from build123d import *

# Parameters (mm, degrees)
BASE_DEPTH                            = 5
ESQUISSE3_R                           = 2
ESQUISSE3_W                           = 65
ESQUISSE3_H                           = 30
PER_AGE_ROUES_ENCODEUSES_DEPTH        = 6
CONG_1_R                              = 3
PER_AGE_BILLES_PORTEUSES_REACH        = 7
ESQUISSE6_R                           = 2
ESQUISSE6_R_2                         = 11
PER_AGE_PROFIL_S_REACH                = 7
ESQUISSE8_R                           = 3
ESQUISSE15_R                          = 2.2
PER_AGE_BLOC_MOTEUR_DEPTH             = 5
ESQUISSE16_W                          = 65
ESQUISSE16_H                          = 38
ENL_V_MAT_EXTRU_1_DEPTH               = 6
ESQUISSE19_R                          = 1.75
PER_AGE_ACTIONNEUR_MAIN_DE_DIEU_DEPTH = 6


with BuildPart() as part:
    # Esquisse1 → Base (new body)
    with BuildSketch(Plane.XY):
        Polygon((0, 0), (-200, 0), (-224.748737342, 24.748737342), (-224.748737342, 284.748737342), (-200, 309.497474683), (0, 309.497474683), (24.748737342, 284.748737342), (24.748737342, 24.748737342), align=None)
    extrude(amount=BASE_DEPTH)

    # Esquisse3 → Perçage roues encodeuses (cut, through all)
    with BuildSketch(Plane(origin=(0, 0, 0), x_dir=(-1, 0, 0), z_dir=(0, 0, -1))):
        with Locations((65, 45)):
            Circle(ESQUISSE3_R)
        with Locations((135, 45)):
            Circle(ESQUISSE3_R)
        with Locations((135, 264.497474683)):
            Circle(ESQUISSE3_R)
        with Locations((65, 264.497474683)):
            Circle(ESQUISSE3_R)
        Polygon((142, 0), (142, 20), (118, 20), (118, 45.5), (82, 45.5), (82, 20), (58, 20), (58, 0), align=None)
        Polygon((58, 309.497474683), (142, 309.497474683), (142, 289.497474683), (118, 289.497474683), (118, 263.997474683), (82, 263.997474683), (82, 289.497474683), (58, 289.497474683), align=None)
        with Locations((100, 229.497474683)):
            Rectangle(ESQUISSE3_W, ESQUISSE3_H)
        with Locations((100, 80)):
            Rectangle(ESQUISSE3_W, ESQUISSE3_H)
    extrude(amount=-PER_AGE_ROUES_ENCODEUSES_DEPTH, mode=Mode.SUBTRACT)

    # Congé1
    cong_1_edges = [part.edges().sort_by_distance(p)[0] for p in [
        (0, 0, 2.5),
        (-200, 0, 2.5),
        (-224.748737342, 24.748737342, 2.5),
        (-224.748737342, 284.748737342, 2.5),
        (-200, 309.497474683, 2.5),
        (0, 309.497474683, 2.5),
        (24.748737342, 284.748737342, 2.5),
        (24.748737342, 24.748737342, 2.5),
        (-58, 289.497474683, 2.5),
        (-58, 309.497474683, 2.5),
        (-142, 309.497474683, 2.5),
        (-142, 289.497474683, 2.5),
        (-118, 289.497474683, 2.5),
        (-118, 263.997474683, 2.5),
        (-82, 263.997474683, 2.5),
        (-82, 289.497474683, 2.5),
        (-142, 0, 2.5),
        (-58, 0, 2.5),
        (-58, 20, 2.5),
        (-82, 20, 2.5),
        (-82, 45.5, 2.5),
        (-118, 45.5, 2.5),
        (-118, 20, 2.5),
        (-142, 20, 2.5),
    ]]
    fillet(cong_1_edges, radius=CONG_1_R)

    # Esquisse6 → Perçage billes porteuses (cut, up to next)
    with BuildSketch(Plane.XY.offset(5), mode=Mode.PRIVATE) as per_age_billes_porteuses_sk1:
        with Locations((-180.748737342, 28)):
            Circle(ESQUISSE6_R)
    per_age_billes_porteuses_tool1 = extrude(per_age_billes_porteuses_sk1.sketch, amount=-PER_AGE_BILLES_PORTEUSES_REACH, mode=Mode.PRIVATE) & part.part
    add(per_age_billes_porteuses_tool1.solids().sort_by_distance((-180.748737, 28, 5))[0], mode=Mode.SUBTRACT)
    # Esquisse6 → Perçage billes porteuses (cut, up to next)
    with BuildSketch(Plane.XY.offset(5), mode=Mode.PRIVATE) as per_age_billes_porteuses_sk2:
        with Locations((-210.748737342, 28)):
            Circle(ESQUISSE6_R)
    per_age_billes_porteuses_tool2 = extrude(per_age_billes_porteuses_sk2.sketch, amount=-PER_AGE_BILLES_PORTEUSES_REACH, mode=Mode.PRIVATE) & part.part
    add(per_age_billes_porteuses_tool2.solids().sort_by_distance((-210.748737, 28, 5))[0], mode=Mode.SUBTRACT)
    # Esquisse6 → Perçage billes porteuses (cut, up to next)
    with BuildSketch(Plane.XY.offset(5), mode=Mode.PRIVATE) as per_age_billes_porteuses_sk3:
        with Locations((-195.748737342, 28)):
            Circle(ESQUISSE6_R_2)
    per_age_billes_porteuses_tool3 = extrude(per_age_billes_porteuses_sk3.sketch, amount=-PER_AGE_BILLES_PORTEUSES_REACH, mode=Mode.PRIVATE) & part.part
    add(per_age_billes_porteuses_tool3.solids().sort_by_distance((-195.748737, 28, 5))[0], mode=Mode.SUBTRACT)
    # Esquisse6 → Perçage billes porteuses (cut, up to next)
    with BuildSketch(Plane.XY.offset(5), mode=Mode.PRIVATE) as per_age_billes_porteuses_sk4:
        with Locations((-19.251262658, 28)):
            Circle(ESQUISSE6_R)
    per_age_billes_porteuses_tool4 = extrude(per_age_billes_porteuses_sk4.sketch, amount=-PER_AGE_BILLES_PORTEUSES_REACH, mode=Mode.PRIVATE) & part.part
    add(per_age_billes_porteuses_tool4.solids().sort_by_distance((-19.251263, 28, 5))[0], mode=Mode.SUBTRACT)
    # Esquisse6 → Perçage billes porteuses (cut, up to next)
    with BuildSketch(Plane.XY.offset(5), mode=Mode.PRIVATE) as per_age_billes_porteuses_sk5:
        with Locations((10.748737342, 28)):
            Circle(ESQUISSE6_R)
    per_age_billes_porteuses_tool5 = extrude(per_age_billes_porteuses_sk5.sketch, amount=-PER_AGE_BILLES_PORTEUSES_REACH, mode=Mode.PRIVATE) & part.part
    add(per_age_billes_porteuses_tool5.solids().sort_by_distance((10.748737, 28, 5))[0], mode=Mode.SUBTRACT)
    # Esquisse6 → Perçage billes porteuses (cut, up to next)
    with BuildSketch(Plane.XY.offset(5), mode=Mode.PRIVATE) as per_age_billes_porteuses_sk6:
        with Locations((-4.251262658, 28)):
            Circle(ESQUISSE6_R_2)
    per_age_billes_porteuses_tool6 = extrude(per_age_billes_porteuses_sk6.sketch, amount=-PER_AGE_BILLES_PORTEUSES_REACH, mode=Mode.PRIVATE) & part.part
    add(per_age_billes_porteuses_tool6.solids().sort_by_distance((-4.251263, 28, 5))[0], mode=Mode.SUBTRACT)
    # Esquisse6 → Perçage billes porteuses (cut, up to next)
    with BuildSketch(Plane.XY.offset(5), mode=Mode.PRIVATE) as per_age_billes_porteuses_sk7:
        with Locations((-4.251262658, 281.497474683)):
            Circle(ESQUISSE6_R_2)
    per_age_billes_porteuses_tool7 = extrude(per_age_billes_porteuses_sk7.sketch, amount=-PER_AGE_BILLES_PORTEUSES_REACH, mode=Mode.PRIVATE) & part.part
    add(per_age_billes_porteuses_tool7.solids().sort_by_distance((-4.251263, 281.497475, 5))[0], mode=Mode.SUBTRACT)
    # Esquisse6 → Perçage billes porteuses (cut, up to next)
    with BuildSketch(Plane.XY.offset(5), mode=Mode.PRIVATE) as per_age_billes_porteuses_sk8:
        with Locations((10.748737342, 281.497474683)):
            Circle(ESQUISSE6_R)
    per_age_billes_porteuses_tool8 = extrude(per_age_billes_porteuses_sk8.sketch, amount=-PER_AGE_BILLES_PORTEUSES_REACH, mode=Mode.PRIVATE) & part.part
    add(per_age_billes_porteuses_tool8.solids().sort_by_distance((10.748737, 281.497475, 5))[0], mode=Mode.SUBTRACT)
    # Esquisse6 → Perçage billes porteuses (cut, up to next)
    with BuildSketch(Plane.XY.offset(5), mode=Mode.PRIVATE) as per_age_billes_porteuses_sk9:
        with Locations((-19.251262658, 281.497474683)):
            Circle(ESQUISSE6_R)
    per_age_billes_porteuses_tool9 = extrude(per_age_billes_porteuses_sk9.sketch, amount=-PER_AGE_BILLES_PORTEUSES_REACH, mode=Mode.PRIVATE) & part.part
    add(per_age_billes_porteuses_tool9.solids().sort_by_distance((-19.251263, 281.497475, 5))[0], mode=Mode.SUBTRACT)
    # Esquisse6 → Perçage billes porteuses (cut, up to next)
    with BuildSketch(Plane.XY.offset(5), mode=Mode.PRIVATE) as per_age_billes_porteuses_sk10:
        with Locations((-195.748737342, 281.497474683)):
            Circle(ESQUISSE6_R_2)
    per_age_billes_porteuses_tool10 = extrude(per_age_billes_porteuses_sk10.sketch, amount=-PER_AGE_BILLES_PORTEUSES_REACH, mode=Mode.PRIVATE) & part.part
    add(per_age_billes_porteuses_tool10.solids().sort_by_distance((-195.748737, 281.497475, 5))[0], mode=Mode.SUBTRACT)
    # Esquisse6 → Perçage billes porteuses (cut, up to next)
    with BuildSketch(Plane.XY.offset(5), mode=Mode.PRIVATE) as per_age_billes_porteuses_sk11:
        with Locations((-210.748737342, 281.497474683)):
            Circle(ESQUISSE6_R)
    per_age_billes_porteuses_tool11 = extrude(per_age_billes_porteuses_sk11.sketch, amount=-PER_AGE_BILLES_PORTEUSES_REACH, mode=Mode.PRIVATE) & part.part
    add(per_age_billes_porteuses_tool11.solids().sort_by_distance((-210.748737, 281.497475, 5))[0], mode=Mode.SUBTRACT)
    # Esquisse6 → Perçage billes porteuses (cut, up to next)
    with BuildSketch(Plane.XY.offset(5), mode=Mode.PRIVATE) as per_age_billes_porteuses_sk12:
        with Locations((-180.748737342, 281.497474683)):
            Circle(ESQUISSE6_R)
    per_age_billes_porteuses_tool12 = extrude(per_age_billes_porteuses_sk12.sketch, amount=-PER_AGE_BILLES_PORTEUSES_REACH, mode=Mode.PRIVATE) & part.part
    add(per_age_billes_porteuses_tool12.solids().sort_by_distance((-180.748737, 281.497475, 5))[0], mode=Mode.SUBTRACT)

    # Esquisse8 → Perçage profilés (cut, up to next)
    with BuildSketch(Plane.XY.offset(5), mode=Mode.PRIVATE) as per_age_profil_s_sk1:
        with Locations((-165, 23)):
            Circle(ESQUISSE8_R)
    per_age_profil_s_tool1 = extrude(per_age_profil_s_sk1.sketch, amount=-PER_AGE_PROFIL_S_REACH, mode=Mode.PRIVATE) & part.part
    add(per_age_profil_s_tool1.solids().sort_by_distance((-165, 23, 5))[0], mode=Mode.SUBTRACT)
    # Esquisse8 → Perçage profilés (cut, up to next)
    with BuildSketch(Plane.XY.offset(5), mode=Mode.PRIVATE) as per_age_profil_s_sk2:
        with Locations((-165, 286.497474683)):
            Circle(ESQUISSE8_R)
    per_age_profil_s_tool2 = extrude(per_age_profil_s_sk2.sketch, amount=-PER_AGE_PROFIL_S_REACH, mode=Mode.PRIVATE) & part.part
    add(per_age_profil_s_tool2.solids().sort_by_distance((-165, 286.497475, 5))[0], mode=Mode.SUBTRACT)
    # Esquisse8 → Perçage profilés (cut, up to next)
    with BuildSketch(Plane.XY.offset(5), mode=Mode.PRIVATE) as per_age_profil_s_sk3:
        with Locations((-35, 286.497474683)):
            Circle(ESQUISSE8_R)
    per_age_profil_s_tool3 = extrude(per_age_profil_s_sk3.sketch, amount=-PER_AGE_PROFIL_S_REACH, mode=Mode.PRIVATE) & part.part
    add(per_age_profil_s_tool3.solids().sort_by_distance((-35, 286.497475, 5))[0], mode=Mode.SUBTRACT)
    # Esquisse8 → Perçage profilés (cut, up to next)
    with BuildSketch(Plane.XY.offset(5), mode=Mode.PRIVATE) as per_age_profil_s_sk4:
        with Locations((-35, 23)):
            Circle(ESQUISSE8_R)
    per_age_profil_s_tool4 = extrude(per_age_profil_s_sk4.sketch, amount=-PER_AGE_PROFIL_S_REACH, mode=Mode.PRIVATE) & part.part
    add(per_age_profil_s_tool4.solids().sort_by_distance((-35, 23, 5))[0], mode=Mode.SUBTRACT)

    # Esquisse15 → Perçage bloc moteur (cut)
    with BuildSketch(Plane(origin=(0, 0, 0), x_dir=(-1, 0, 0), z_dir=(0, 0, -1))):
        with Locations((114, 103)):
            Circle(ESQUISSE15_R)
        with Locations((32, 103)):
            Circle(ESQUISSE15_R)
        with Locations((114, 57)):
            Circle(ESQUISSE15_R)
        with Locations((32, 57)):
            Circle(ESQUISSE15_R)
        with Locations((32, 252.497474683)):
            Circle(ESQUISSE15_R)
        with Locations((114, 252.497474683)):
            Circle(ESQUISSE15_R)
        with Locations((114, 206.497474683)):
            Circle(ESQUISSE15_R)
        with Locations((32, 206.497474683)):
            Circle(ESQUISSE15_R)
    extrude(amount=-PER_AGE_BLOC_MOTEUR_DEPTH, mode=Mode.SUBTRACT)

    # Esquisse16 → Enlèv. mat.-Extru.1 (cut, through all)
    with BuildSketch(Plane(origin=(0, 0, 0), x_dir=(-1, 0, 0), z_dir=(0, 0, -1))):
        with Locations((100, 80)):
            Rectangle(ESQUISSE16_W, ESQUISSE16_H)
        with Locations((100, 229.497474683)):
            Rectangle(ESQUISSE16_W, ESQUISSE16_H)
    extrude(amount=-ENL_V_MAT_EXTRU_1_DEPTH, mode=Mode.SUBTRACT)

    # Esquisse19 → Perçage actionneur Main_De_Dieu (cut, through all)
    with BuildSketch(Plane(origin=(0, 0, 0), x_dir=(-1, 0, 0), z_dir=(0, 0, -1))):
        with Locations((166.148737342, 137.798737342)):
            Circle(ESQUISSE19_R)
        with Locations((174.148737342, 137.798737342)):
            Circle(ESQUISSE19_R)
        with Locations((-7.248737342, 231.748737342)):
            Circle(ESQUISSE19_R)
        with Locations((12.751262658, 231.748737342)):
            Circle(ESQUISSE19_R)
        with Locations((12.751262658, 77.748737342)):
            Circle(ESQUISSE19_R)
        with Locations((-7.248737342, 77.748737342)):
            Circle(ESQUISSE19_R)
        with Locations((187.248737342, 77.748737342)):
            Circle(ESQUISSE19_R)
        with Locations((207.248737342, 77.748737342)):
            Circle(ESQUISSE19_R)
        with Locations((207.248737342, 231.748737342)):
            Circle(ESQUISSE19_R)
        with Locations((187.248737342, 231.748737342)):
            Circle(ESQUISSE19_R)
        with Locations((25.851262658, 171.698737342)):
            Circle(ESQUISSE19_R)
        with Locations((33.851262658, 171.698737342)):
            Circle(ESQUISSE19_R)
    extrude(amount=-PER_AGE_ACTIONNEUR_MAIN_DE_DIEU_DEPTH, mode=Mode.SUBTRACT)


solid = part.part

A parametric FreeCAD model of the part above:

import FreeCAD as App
import Part
import Sketcher

V = App.Vector
Q = App.Units.Quantity


def edges_at(feature, points):
    """Names of the edges that pass closest to the given points."""
    edges = feature.Shape.Edges
    near = lambda p: min(range(len(edges)), key=lambda i: edges[i].distToShape(Part.Vertex(*p))[0])
    return sorted({f"Edge{near(p) + 1}" for p in points})

doc = App.newDocument("Part")
body = doc.addObject("PartDesign::Body", "Body")

# Sketch on XY plane
sketch1 = body.newObject("Sketcher::SketchObject", "Sketch")
sketch1.AttachmentSupport = (doc.getObject("XY_Plane"), [""])
sketch1.MapMode = "FlatFace"
sketch1.addGeometry([
    Part.LineSegment(V(-200, 0, 0), V(0, 0, 0)),  # 0
    Part.LineSegment(V(0, 0, 0), V(25, 25, 0)),  # 1
    Part.LineSegment(V(25, 25, 0), V(25, 285, 0)),  # 2
    Part.LineSegment(V(25, 285, 0), V(0, 309, 0)),  # 3
    Part.LineSegment(V(0, 309, 0), V(-200, 309, 0)),  # 4
    Part.LineSegment(V(-200, 309, 0), V(-225, 285, 0)),  # 5
    Part.LineSegment(V(-225, 285, 0), V(-225, 25, 0)),  # 6
    Part.LineSegment(V(-225, 25, 0), V(-200, 0, 0)),  # 7
], False)
sketch1.addConstraint([
    Sketcher.Constraint("Coincident", 0, 2, 1, 1),
    Sketcher.Constraint("Coincident", 1, 2, 2, 1),
    Sketcher.Constraint("Coincident", 2, 2, 3, 1),
    Sketcher.Constraint("Coincident", 3, 2, 4, 1),
    Sketcher.Constraint("Coincident", 4, 2, 5, 1),
    Sketcher.Constraint("Coincident", 5, 2, 6, 1),
    Sketcher.Constraint("Coincident", 6, 2, 7, 1),
    Sketcher.Constraint("Coincident", 7, 2, 0, 1),
    Sketcher.Constraint("Horizontal", 0),
    Sketcher.Constraint("Vertical", 2),
    Sketcher.Constraint("Horizontal", 4),
    Sketcher.Constraint("Vertical", 6),
    Sketcher.Constraint("Coincident", 0, 2, -1, 1),
    Sketcher.Constraint("PointOnObject", 3, 2, -2),
    Sketcher.Constraint("Perpendicular", 1, 3),
    Sketcher.Constraint("Perpendicular", 3, 5),
    Sketcher.Constraint("Perpendicular", 5, 7),
    Sketcher.Constraint("Horizontal", 2, 2, 5, 2),
    Sketcher.Constraint("Horizontal", 1, 2, 6, 2),
    Sketcher.Constraint("Vertical", 4, 2, 7, 2),
    Sketcher.Constraint("DistanceX", 0, 1, 0, 2, Q("200 mm")),
    Sketcher.Constraint("DistanceY", 2, 1, 2, 2, Q("260 mm")),
    Sketcher.Constraint("Distance", 1, Q("35 mm")),
])
pad1 = body.newObject("PartDesign::Pad", "Pad")
pad1.Profile = sketch1
pad1.Length = 5

# Sketch on XY plane
sketch2 = body.newObject("Sketcher::SketchObject", "Sketch001")
sketch2.AttachmentSupport = (doc.getObject("XY_Plane"), [""])
sketch2.MapMode = "FlatFace"
sketch2.addGeometry([
    Part.Circle(V(-65, 45, 0), V(0, 0, 1), 2),  # 0
    Part.Circle(V(-135, 45, 0), V(0, 0, 1), 2),  # 1
    Part.Circle(V(-135, 264.5, 0), V(0, 0, 1), 2),  # 2
    Part.Circle(V(-65, 264.5, 0), V(0, 0, 1), 2),  # 3
    Part.LineSegment(V(-142, 0, 0), V(-142, 20, 0)),  # 4
    Part.LineSegment(V(-142, 20, 0), V(-118, 20, 0)),  # 5
    Part.LineSegment(V(-118, 20, 0), V(-118, 45.5, 0)),  # 6
    Part.LineSegment(V(-118, 45.5, 0), V(-82, 45.5, 0)),  # 7
    Part.LineSegment(V(-82, 45.5, 0), V(-82, 20, 0)),  # 8
    Part.LineSegment(V(-82, 20, 0), V(-58, 20, 0)),  # 9
    Part.LineSegment(V(-58, 20, 0), V(-58, 0, 0)),  # 10
    Part.LineSegment(V(-58, 0, 0), V(-142, 0, 0)),  # 11
    Part.LineSegment(V(-142, 309.5, 0), V(-58, 309.5, 0)),  # 12
    Part.LineSegment(V(-58, 309.5, 0), V(-58, 289.5, 0)),  # 13
    Part.LineSegment(V(-58, 289.5, 0), V(-82, 289.5, 0)),  # 14
    Part.LineSegment(V(-82, 289.5, 0), V(-82, 264, 0)),  # 15
    Part.LineSegment(V(-82, 264, 0), V(-118, 264, 0)),  # 16
    Part.LineSegment(V(-118, 264, 0), V(-118, 289.5, 0)),  # 17
    Part.LineSegment(V(-118, 289.5, 0), V(-142, 289.5, 0)),  # 18
    Part.LineSegment(V(-142, 289.5, 0), V(-142, 309.5, 0)),  # 19
    Part.LineSegment(V(-67.5, 244.5, 0), V(-67.5, 214.5, 0)),  # 20
    Part.LineSegment(V(-67.5, 214.5, 0), V(-132.5, 214.5, 0)),  # 21
    Part.LineSegment(V(-132.5, 214.5, 0), V(-132.5, 244.5, 0)),  # 22
    Part.LineSegment(V(-132.5, 244.5, 0), V(-67.5, 244.5, 0)),  # 23
    Part.LineSegment(V(-67.5, 95, 0), V(-67.5, 65, 0)),  # 24
    Part.LineSegment(V(-67.5, 65, 0), V(-132.5, 65, 0)),  # 25
    Part.LineSegment(V(-132.5, 65, 0), V(-132.5, 95, 0)),  # 26
    Part.LineSegment(V(-132.5, 95, 0), V(-67.5, 95, 0)),  # 27
], False)
sketch2.addConstraint([
    Sketcher.Constraint("Coincident", 4, 2, 5, 1),
    Sketcher.Constraint("Coincident", 5, 2, 6, 1),
    Sketcher.Constraint("Coincident", 6, 2, 7, 1),
    Sketcher.Constraint("Coincident", 7, 2, 8, 1),
    Sketcher.Constraint("Coincident", 8, 2, 9, 1),
    Sketcher.Constraint("Coincident", 9, 2, 10, 1),
    Sketcher.Constraint("Coincident", 10, 2, 11, 1),
    Sketcher.Constraint("Coincident", 11, 2, 4, 1),
    Sketcher.Constraint("Coincident", 12, 2, 13, 1),
    Sketcher.Constraint("Coincident", 13, 2, 14, 1),
    Sketcher.Constraint("Coincident", 14, 2, 15, 1),
    Sketcher.Constraint("Coincident", 15, 2, 16, 1),
    Sketcher.Constraint("Coincident", 16, 2, 17, 1),
    Sketcher.Constraint("Coincident", 17, 2, 18, 1),
    Sketcher.Constraint("Coincident", 18, 2, 19, 1),
    Sketcher.Constraint("Coincident", 19, 2, 12, 1),
    Sketcher.Constraint("Coincident", 20, 2, 21, 1),
    Sketcher.Constraint("Coincident", 21, 2, 22, 1),
    Sketcher.Constraint("Coincident", 22, 2, 23, 1),
    Sketcher.Constraint("Coincident", 23, 2, 20, 1),
    Sketcher.Constraint("Coincident", 24, 2, 25, 1),
    Sketcher.Constraint("Coincident", 25, 2, 26, 1),
    Sketcher.Constraint("Coincident", 26, 2, 27, 1),
    Sketcher.Constraint("Coincident", 27, 2, 24, 1),
    Sketcher.Constraint("Vertical", 4),
    Sketcher.Constraint("Horizontal", 5),
    Sketcher.Constraint("Vertical", 6),
    Sketcher.Constraint("Horizontal", 7),
    Sketcher.Constraint("Vertical", 8),
    Sketcher.Constraint("Horizontal", 9),
    Sketcher.Constraint("Vertical", 10),
    Sketcher.Constraint("Horizontal", 11),
    Sketcher.Constraint("Horizontal", 12),
    Sketcher.Constraint("Vertical", 13),
    Sketcher.Constraint("Horizontal", 14),
    Sketcher.Constraint("Vertical", 15),
    Sketcher.Constraint("Horizontal", 16),
    Sketcher.Constraint("Vertical", 17),
    Sketcher.Constraint("Horizontal", 18),
    Sketcher.Constraint("Vertical", 19),
    Sketcher.Constraint("Vertical", 20),
    Sketcher.Constraint("Horizontal", 21),
    Sketcher.Constraint("Vertical", 22),
    Sketcher.Constraint("Horizontal", 23),
    Sketcher.Constraint("Vertical", 24),
    Sketcher.Constraint("Horizontal", 25),
    Sketcher.Constraint("Vertical", 26),
    Sketcher.Constraint("Horizontal", 27),
    Sketcher.Constraint("Equal", 0, 1),
    Sketcher.Constraint("Equal", 1, 2),
    Sketcher.Constraint("Equal", 2, 3),
    Sketcher.Constraint("PointOnObject", 10, 2, -1),
    Sketcher.Constraint("Horizontal", 0, 3, 1, 3),
    Sketcher.Constraint("Horizontal", 2, 3, 3, 3),
    Sketcher.Constraint("Horizontal", 5, 2, 8, 2),
    Sketcher.Constraint("Horizontal", 14, 2, 17, 2),
    Sketcher.Constraint("Vertical", 1, 3, 2, 3),
    Sketcher.Constraint("Vertical", 0, 3, 3, 3),
    Sketcher.Constraint("Vertical", 10, 2, 12, 2),
    Sketcher.Constraint("Vertical", 8, 2, 14, 2),
    Sketcher.Constraint("Vertical", 6, 2, 16, 2),
    Sketcher.Constraint("Vertical", 11, 2, 18, 2),
    Sketcher.Constraint("Vertical", 23, 2, 24, 2),
    Sketcher.Constraint("Vertical", 22, 2, 25, 2),
    Sketcher.Constraint("Equal", 5, 9),
    Sketcher.Constraint("Equal", 10, 13),
    Sketcher.Constraint("Equal", 8, 15),
    Sketcher.Constraint("Equal", 22, 24),
    Sketcher.Constraint("Diameter", 0, Q("4 mm")),
    Sketcher.Constraint("DistanceX", 5, 1, 5, 2, Q("24 mm")),
    Sketcher.Constraint("DistanceX", 7, 1, 7, 2, Q("36 mm")),
    Sketcher.Constraint("DistanceX", 21, 2, 21, 1, Q("65 mm")),
    Sketcher.Constraint("DistanceY", 4, 1, 4, 2, Q("20 mm")),
    Sketcher.Constraint("DistanceY", 20, 2, 20, 1, Q("30 mm")),
    Sketcher.Constraint("DistanceY", 6, 1, 6, 2, Q("25.5 mm")),
    Sketcher.Constraint("DistanceX", 0, 3, -1, 1, Q("65 mm")),
    Sketcher.Constraint("DistanceY", -1, 1, 0, 3, Q("45 mm")),
    Sketcher.Constraint("DistanceX", 1, 3, -1, 1, Q("135 mm")),
    Sketcher.Constraint("DistanceX", 4, 2, -1, 1, Q("142 mm")),
    Sketcher.Constraint("DistanceY", -1, 1, 24, 2, Q("65 mm")),
    Sketcher.Constraint("DistanceY", 3, 3, 12, 2, Q("45 mm")),
    Sketcher.Constraint("DistanceY", 20, 2, 3, 3, Q("50 mm")),
    Sketcher.Constraint("DistanceX", 20, 2, -1, 1, Q("67.5 mm")),
    Sketcher.Constraint("DistanceY", -1, 1, 2, 3, Q("264.497475 mm")),
])
pocket1 = body.newObject("PartDesign::Pocket", "Pocket")
pocket1.Profile = sketch2
pocket1.Type = "ThroughAll"
pocket1.Reversed = True
doc.recompute()

fillet = body.newObject("PartDesign::Fillet", "Fillet")
fillet.Base = (pocket1, edges_at(pocket1, [
    (0, 0, 2.5),
    (-200, 0, 2.5),
    (-224.749, 24.749, 2.5),
    (-224.749, 284.749, 2.5),
    (-200, 309.497, 2.5),
    (0, 309.497, 2.5),
    (24.749, 284.749, 2.5),
    (24.749, 24.749, 2.5),
    (-58, 289.497, 2.5),
    (-58, 309.497, 2.5),
    (-142, 309.497, 2.5),
    (-142, 289.497, 2.5),
    (-118, 289.497, 2.5),
    (-118, 263.997, 2.5),
    (-82, 263.997, 2.5),
    (-82, 289.497, 2.5),
    (-142, 0, 2.5),
    (-58, 0, 2.5),
    (-58, 20, 2.5),
    (-82, 20, 2.5),
    (-82, 45.5, 2.5),
    (-118, 45.5, 2.5),
    (-118, 20, 2.5),
    (-142, 20, 2.5),
]))
fillet.Radius = 3

# Sketch on XY plane
sketch3 = body.newObject("Sketcher::SketchObject", "Sketch002")
sketch3.AttachmentSupport = (doc.getObject("XY_Plane"), [""])
sketch3.MapMode = "FlatFace"
sketch3.AttachmentOffset = App.Placement(V(0, 0, 5), App.Rotation())
sketch3.addGeometry(Part.Circle(V(-180.7, 28, 0), V(0, 0, 1), 2), False)
sketch3.addConstraint([
    Sketcher.Constraint("Diameter", 0, Q("4 mm")),
    Sketcher.Constraint("DistanceY", -1, 1, 0, 3, Q("28 mm")),
    Sketcher.Constraint("DistanceX", 0, 3, -1, 1, Q("180.748737 mm")),
])
pocket2 = body.newObject("PartDesign::Pocket", "Pocket001")
pocket2.Profile = sketch3
pocket2.Type = "UpToFirst"

# Sketch on XY plane
sketch4 = body.newObject("Sketcher::SketchObject", "Sketch003")
sketch4.AttachmentSupport = (doc.getObject("XY_Plane"), [""])
sketch4.MapMode = "FlatFace"
sketch4.AttachmentOffset = App.Placement(V(0, 0, 5), App.Rotation())
sketch4.addGeometry(Part.Circle(V(-210.7, 28, 0), V(0, 0, 1), 2), False)
sketch4.addConstraint([
    Sketcher.Constraint("Diameter", 0, Q("4 mm")),
    Sketcher.Constraint("DistanceY", -1, 1, 0, 3, Q("28 mm")),
    Sketcher.Constraint("DistanceX", 0, 3, -1, 1, Q("210.748737 mm")),
])
pocket3 = body.newObject("PartDesign::Pocket", "Pocket002")
pocket3.Profile = sketch4
pocket3.Type = "UpToFirst"

# Sketch on XY plane
sketch5 = body.newObject("Sketcher::SketchObject", "Sketch004")
sketch5.AttachmentSupport = (doc.getObject("XY_Plane"), [""])
sketch5.MapMode = "FlatFace"
sketch5.AttachmentOffset = App.Placement(V(0, 0, 5), App.Rotation())
sketch5.addGeometry(Part.Circle(V(-196, 28, 0), V(0, 0, 1), 11), False)
sketch5.addConstraint([
    Sketcher.Constraint("Diameter", 0, Q("22 mm")),
    Sketcher.Constraint("DistanceY", -1, 1, 0, 3, Q("28 mm")),
    Sketcher.Constraint("DistanceX", 0, 3, -1, 1, Q("195.748737 mm")),
])
pocket4 = body.newObject("PartDesign::Pocket", "Pocket003")
pocket4.Profile = sketch5
pocket4.Type = "UpToFirst"

# Sketch on XY plane
sketch6 = body.newObject("Sketcher::SketchObject", "Sketch005")
sketch6.AttachmentSupport = (doc.getObject("XY_Plane"), [""])
sketch6.MapMode = "FlatFace"
sketch6.AttachmentOffset = App.Placement(V(0, 0, 5), App.Rotation())
sketch6.addGeometry(Part.Circle(V(-19.3, 28, 0), V(0, 0, 1), 2), False)
sketch6.addConstraint([
    Sketcher.Constraint("Diameter", 0, Q("4 mm")),
    Sketcher.Constraint("DistanceY", -1, 1, 0, 3, Q("28 mm")),
    Sketcher.Constraint("DistanceX", 0, 3, -1, 1, Q("19.251263 mm")),
])
pocket5 = body.newObject("PartDesign::Pocket", "Pocket004")
pocket5.Profile = sketch6
pocket5.Type = "UpToFirst"

# Sketch on XY plane
sketch7 = body.newObject("Sketcher::SketchObject", "Sketch006")
sketch7.AttachmentSupport = (doc.getObject("XY_Plane"), [""])
sketch7.MapMode = "FlatFace"
sketch7.AttachmentOffset = App.Placement(V(0, 0, 5), App.Rotation())
sketch7.addGeometry(Part.Circle(V(10.7, 28, 0), V(0, 0, 1), 2), False)
sketch7.addConstraint([
    Sketcher.Constraint("Diameter", 0, Q("4 mm")),
    Sketcher.Constraint("DistanceY", -1, 1, 0, 3, Q("28 mm")),
    Sketcher.Constraint("DistanceX", -1, 1, 0, 3, Q("10.748737 mm")),
])
pocket6 = body.newObject("PartDesign::Pocket", "Pocket005")
pocket6.Profile = sketch7
pocket6.Type = "UpToFirst"

# Sketch on XY plane
sketch8 = body.newObject("Sketcher::SketchObject", "Sketch007")
sketch8.AttachmentSupport = (doc.getObject("XY_Plane"), [""])
sketch8.MapMode = "FlatFace"
sketch8.AttachmentOffset = App.Placement(V(0, 0, 5), App.Rotation())
sketch8.addGeometry(Part.Circle(V(-4, 28, 0), V(0, 0, 1), 11), False)
sketch8.addConstraint([
    Sketcher.Constraint("Diameter", 0, Q("22 mm")),
    Sketcher.Constraint("DistanceY", -1, 1, 0, 3, Q("28 mm")),
    Sketcher.Constraint("DistanceX", 0, 3, -1, 1, Q("4.251263 mm")),
])
pocket7 = body.newObject("PartDesign::Pocket", "Pocket006")
pocket7.Profile = sketch8
pocket7.Type = "UpToFirst"

# Sketch on XY plane
sketch9 = body.newObject("Sketcher::SketchObject", "Sketch008")
sketch9.AttachmentSupport = (doc.getObject("XY_Plane"), [""])
sketch9.MapMode = "FlatFace"
sketch9.AttachmentOffset = App.Placement(V(0, 0, 5), App.Rotation())
sketch9.addGeometry(Part.Circle(V(-4, 281, 0), V(0, 0, 1), 11), False)
sketch9.addConstraint([
    Sketcher.Constraint("Diameter", 0, Q("22 mm")),
    Sketcher.Constraint("DistanceX", 0, 3, -1, 1, Q("4.251263 mm")),
    Sketcher.Constraint("DistanceY", -1, 1, 0, 3, Q("281.497475 mm")),
])
pocket8 = body.newObject("PartDesign::Pocket", "Pocket007")
pocket8.Profile = sketch9
pocket8.Type = "UpToFirst"

# Sketch on XY plane
sketch10 = body.newObject("Sketcher::SketchObject", "Sketch009")
sketch10.AttachmentSupport = (doc.getObject("XY_Plane"), [""])
sketch10.MapMode = "FlatFace"
sketch10.AttachmentOffset = App.Placement(V(0, 0, 5), App.Rotation())
sketch10.addGeometry(Part.Circle(V(10.7, 281.5, 0), V(0, 0, 1), 2), False)
sketch10.addConstraint([
    Sketcher.Constraint("Diameter", 0, Q("4 mm")),
    Sketcher.Constraint("DistanceX", -1, 1, 0, 3, Q("10.748737 mm")),
    Sketcher.Constraint("DistanceY", -1, 1, 0, 3, Q("281.497475 mm")),
])
pocket9 = body.newObject("PartDesign::Pocket", "Pocket008")
pocket9.Profile = sketch10
pocket9.Type = "UpToFirst"

# Sketch on XY plane
sketch11 = body.newObject("Sketcher::SketchObject", "Sketch010")
sketch11.AttachmentSupport = (doc.getObject("XY_Plane"), [""])
sketch11.MapMode = "FlatFace"
sketch11.AttachmentOffset = App.Placement(V(0, 0, 5), App.Rotation())
sketch11.addGeometry(Part.Circle(V(-19.3, 281.5, 0), V(0, 0, 1), 2), False)
sketch11.addConstraint([
    Sketcher.Constraint("Diameter", 0, Q("4 mm")),
    Sketcher.Constraint("DistanceX", 0, 3, -1, 1, Q("19.251263 mm")),
    Sketcher.Constraint("DistanceY", -1, 1, 0, 3, Q("281.497475 mm")),
])
pocket10 = body.newObject("PartDesign::Pocket", "Pocket009")
pocket10.Profile = sketch11
pocket10.Type = "UpToFirst"

# Sketch on XY plane
sketch12 = body.newObject("Sketcher::SketchObject", "Sketch011")
sketch12.AttachmentSupport = (doc.getObject("XY_Plane"), [""])
sketch12.MapMode = "FlatFace"
sketch12.AttachmentOffset = App.Placement(V(0, 0, 5), App.Rotation())
sketch12.addGeometry(Part.Circle(V(-196, 281, 0), V(0, 0, 1), 11), False)
sketch12.addConstraint([
    Sketcher.Constraint("Diameter", 0, Q("22 mm")),
    Sketcher.Constraint("DistanceX", 0, 3, -1, 1, Q("195.748737 mm")),
    Sketcher.Constraint("DistanceY", -1, 1, 0, 3, Q("281.497475 mm")),
])
pocket11 = body.newObject("PartDesign::Pocket", "Pocket010")
pocket11.Profile = sketch12
pocket11.Type = "UpToFirst"

# Sketch on XY plane
sketch13 = body.newObject("Sketcher::SketchObject", "Sketch012")
sketch13.AttachmentSupport = (doc.getObject("XY_Plane"), [""])
sketch13.MapMode = "FlatFace"
sketch13.AttachmentOffset = App.Placement(V(0, 0, 5), App.Rotation())
sketch13.addGeometry(Part.Circle(V(-210.7, 281.5, 0), V(0, 0, 1), 2), False)
sketch13.addConstraint([
    Sketcher.Constraint("Diameter", 0, Q("4 mm")),
    Sketcher.Constraint("DistanceX", 0, 3, -1, 1, Q("210.748737 mm")),
    Sketcher.Constraint("DistanceY", -1, 1, 0, 3, Q("281.497475 mm")),
])
pocket12 = body.newObject("PartDesign::Pocket", "Pocket011")
pocket12.Profile = sketch13
pocket12.Type = "UpToFirst"

# Sketch on XY plane
sketch14 = body.newObject("Sketcher::SketchObject", "Sketch013")
sketch14.AttachmentSupport = (doc.getObject("XY_Plane"), [""])
sketch14.MapMode = "FlatFace"
sketch14.AttachmentOffset = App.Placement(V(0, 0, 5), App.Rotation())
sketch14.addGeometry(Part.Circle(V(-180.7, 281.5, 0), V(0, 0, 1), 2), False)
sketch14.addConstraint([
    Sketcher.Constraint("Diameter", 0, Q("4 mm")),
    Sketcher.Constraint("DistanceX", 0, 3, -1, 1, Q("180.748737 mm")),
    Sketcher.Constraint("DistanceY", -1, 1, 0, 3, Q("281.497475 mm")),
])
pocket13 = body.newObject("PartDesign::Pocket", "Pocket012")
pocket13.Profile = sketch14
pocket13.Type = "UpToFirst"

# Sketch on XY plane
sketch15 = body.newObject("Sketcher::SketchObject", "Sketch014")
sketch15.AttachmentSupport = (doc.getObject("XY_Plane"), [""])
sketch15.MapMode = "FlatFace"
sketch15.AttachmentOffset = App.Placement(V(0, 0, 5), App.Rotation())
sketch15.addGeometry(Part.Circle(V(-165, 23, 0), V(0, 0, 1), 3), False)
sketch15.addConstraint([
    Sketcher.Constraint("Diameter", 0, Q("6 mm")),
    Sketcher.Constraint("DistanceX", 0, 3, -1, 1, Q("165 mm")),
    Sketcher.Constraint("DistanceY", -1, 1, 0, 3, Q("23 mm")),
])
pocket14 = body.newObject("PartDesign::Pocket", "Pocket013")
pocket14.Profile = sketch15
pocket14.Type = "UpToFirst"

# Sketch on XY plane
sketch16 = body.newObject("Sketcher::SketchObject", "Sketch015")
sketch16.AttachmentSupport = (doc.getObject("XY_Plane"), [""])
sketch16.MapMode = "FlatFace"
sketch16.AttachmentOffset = App.Placement(V(0, 0, 5), App.Rotation())
sketch16.addGeometry(Part.Circle(V(-165, 286.5, 0), V(0, 0, 1), 3), False)
sketch16.addConstraint([
    Sketcher.Constraint("Diameter", 0, Q("6 mm")),
    Sketcher.Constraint("DistanceX", 0, 3, -1, 1, Q("165 mm")),
    Sketcher.Constraint("DistanceY", -1, 1, 0, 3, Q("286.497475 mm")),
])
pocket15 = body.newObject("PartDesign::Pocket", "Pocket014")
pocket15.Profile = sketch16
pocket15.Type = "UpToFirst"

# Sketch on XY plane
sketch17 = body.newObject("Sketcher::SketchObject", "Sketch016")
sketch17.AttachmentSupport = (doc.getObject("XY_Plane"), [""])
sketch17.MapMode = "FlatFace"
sketch17.AttachmentOffset = App.Placement(V(0, 0, 5), App.Rotation())
sketch17.addGeometry(Part.Circle(V(-35, 286.5, 0), V(0, 0, 1), 3), False)
sketch17.addConstraint([
    Sketcher.Constraint("Diameter", 0, Q("6 mm")),
    Sketcher.Constraint("DistanceX", 0, 3, -1, 1, Q("35 mm")),
    Sketcher.Constraint("DistanceY", -1, 1, 0, 3, Q("286.497475 mm")),
])
pocket16 = body.newObject("PartDesign::Pocket", "Pocket015")
pocket16.Profile = sketch17
pocket16.Type = "UpToFirst"

# Sketch on XY plane
sketch18 = body.newObject("Sketcher::SketchObject", "Sketch017")
sketch18.AttachmentSupport = (doc.getObject("XY_Plane"), [""])
sketch18.MapMode = "FlatFace"
sketch18.AttachmentOffset = App.Placement(V(0, 0, 5), App.Rotation())
sketch18.addGeometry(Part.Circle(V(-35, 23, 0), V(0, 0, 1), 3), False)
sketch18.addConstraint([
    Sketcher.Constraint("Diameter", 0, Q("6 mm")),
    Sketcher.Constraint("DistanceX", 0, 3, -1, 1, Q("35 mm")),
    Sketcher.Constraint("DistanceY", -1, 1, 0, 3, Q("23 mm")),
])
pocket17 = body.newObject("PartDesign::Pocket", "Pocket016")
pocket17.Profile = sketch18
pocket17.Type = "UpToFirst"

# Sketch on XY plane
sketch19 = body.newObject("Sketcher::SketchObject", "Sketch018")
sketch19.AttachmentSupport = (doc.getObject("XY_Plane"), [""])
sketch19.MapMode = "FlatFace"
sketch19.addGeometry([
    Part.Circle(V(-114, 103, 0), V(0, 0, 1), 2.2),  # 0
    Part.Circle(V(-32, 103, 0), V(0, 0, 1), 2.2),  # 1
    Part.Circle(V(-114, 57, 0), V(0, 0, 1), 2.2),  # 2
    Part.Circle(V(-32, 57, 0), V(0, 0, 1), 2.2),  # 3
    Part.Circle(V(-32, 252.5, 0), V(0, 0, 1), 2.2),  # 4
    Part.Circle(V(-114, 252.5, 0), V(0, 0, 1), 2.2),  # 5
    Part.Circle(V(-114, 206.5, 0), V(0, 0, 1), 2.2),  # 6
    Part.Circle(V(-32, 206.5, 0), V(0, 0, 1), 2.2),  # 7
], False)
sketch19.addConstraint([
    Sketcher.Constraint("Equal", 0, 1),
    Sketcher.Constraint("Equal", 1, 2),
    Sketcher.Constraint("Equal", 2, 3),
    Sketcher.Constraint("Equal", 3, 4),
    Sketcher.Constraint("Equal", 4, 5),
    Sketcher.Constraint("Equal", 5, 6),
    Sketcher.Constraint("Equal", 6, 7),
    Sketcher.Constraint("Horizontal", 0, 3, 1, 3),
    Sketcher.Constraint("Horizontal", 2, 3, 3, 3),
    Sketcher.Constraint("Horizontal", 4, 3, 5, 3),
    Sketcher.Constraint("Horizontal", 6, 3, 7, 3),
    Sketcher.Constraint("Vertical", 0, 3, 2, 3),
    Sketcher.Constraint("Vertical", 1, 3, 3, 3),
    Sketcher.Constraint("Vertical", 3, 3, 4, 3),
    Sketcher.Constraint("Vertical", 2, 3, 5, 3),
    Sketcher.Constraint("Vertical", 5, 3, 6, 3),
    Sketcher.Constraint("Vertical", 4, 3, 7, 3),
    Sketcher.Constraint("Diameter", 0, Q("4.4 mm")),
    Sketcher.Constraint("DistanceX", 0, 3, -1, 1, Q("114 mm")),
    Sketcher.Constraint("DistanceY", -1, 1, 0, 3, Q("103 mm")),
    Sketcher.Constraint("DistanceX", 1, 3, -1, 1, Q("32 mm")),
    Sketcher.Constraint("DistanceY", -1, 1, 2, 3, Q("57 mm")),
    Sketcher.Constraint("DistanceY", 6, 3, 5, 3, Q("46 mm")),
    Sketcher.Constraint("DistanceY", -1, 1, 4, 3, Q("252.497475 mm")),
])
pocket18 = body.newObject("PartDesign::Pocket", "Pocket017")
pocket18.Profile = sketch19
pocket18.Length = 5
pocket18.Reversed = True

# Sketch on XY plane
sketch20 = body.newObject("Sketcher::SketchObject", "Sketch019")
sketch20.AttachmentSupport = (doc.getObject("XY_Plane"), [""])
sketch20.MapMode = "FlatFace"
sketch20.addGeometry([
    Part.LineSegment(V(-68, 99, 0), V(-68, 61, 0)),  # 0
    Part.LineSegment(V(-68, 61, 0), V(-132, 61, 0)),  # 1
    Part.LineSegment(V(-132, 61, 0), V(-132, 99, 0)),  # 2
    Part.LineSegment(V(-132, 99, 0), V(-68, 99, 0)),  # 3
    Part.LineSegment(V(-68, 248, 0), V(-68, 210, 0)),  # 4
    Part.LineSegment(V(-68, 210, 0), V(-132, 210, 0)),  # 5
    Part.LineSegment(V(-132, 210, 0), V(-132, 248, 0)),  # 6
    Part.LineSegment(V(-132, 248, 0), V(-68, 248, 0)),  # 7
], False)
sketch20.addConstraint([
    Sketcher.Constraint("Coincident", 0, 2, 1, 1),
    Sketcher.Constraint("Coincident", 1, 2, 2, 1),
    Sketcher.Constraint("Coincident", 2, 2, 3, 1),
    Sketcher.Constraint("Coincident", 3, 2, 0, 1),
    Sketcher.Constraint("Coincident", 4, 2, 5, 1),
    Sketcher.Constraint("Coincident", 5, 2, 6, 1),
    Sketcher.Constraint("Coincident", 6, 2, 7, 1),
    Sketcher.Constraint("Coincident", 7, 2, 4, 1),
    Sketcher.Constraint("Vertical", 0),
    Sketcher.Constraint("Horizontal", 1),
    Sketcher.Constraint("Vertical", 2),
    Sketcher.Constraint("Horizontal", 3),
    Sketcher.Constraint("Vertical", 4),
    Sketcher.Constraint("Horizontal", 5),
    Sketcher.Constraint("Vertical", 6),
    Sketcher.Constraint("Horizontal", 7),
    Sketcher.Constraint("Vertical", 3, 2, 4, 2),
    Sketcher.Constraint("Vertical", 2, 2, 5, 2),
    Sketcher.Constraint("Equal", 2, 4),
    Sketcher.Constraint("DistanceX", 1, 2, 1, 1, Q("65 mm")),
    Sketcher.Constraint("DistanceY", 0, 2, 0, 1, Q("38 mm")),
    Sketcher.Constraint("DistanceY", -1, 1, 0, 2, Q("61 mm")),
    Sketcher.Constraint("DistanceX", 0, 2, -1, 1, Q("67.5 mm")),
    Sketcher.Constraint("DistanceY", -1, 1, 4, 2, Q("210.497475 mm")),
])
pocket19 = body.newObject("PartDesign::Pocket", "Pocket018")
pocket19.Profile = sketch20
pocket19.Type = "ThroughAll"
pocket19.Reversed = True

# Sketch on XY plane
sketch21 = body.newObject("Sketcher::SketchObject", "Sketch020")
sketch21.AttachmentSupport = (doc.getObject("XY_Plane"), [""])
sketch21.MapMode = "FlatFace"
sketch21.addGeometry([
    Part.Circle(V(-166.1, 137.8, 0), V(0, 0, 1), 1.8),  # 0
    Part.Circle(V(-174.1, 137.8, 0), V(0, 0, 1), 1.8),  # 1
    Part.Circle(V(7.2, 231.7, 0), V(0, 0, 1), 1.8),  # 2
    Part.Circle(V(-12.8, 231.7, 0), V(0, 0, 1), 1.8),  # 3
    Part.Circle(V(-12.8, 77.7, 0), V(0, 0, 1), 1.8),  # 4
    Part.Circle(V(7.2, 77.7, 0), V(0, 0, 1), 1.8),  # 5
    Part.Circle(V(-187.2, 77.7, 0), V(0, 0, 1), 1.8),  # 6
    Part.Circle(V(-207.2, 77.7, 0), V(0, 0, 1), 1.8),  # 7
    Part.Circle(V(-207.2, 231.7, 0), V(0, 0, 1), 1.8),  # 8
    Part.Circle(V(-187.2, 231.7, 0), V(0, 0, 1), 1.8),  # 9
    Part.Circle(V(-25.9, 171.7, 0), V(0, 0, 1), 1.8),  # 10
    Part.Circle(V(-33.9, 171.7, 0), V(0, 0, 1), 1.8),  # 11
], False)
sketch21.addConstraint([
    Sketcher.Constraint("Equal", 0, 1),
    Sketcher.Constraint("Equal", 1, 2),
    Sketcher.Constraint("Equal", 2, 3),
    Sketcher.Constraint("Equal", 3, 4),
    Sketcher.Constraint("Equal", 4, 5),
    Sketcher.Constraint("Equal", 5, 6),
    Sketcher.Constraint("Equal", 6, 7),
    Sketcher.Constraint("Equal", 7, 8),
    Sketcher.Constraint("Equal", 8, 9),
    Sketcher.Constraint("Equal", 9, 10),
    Sketcher.Constraint("Equal", 10, 11),
    Sketcher.Constraint("Horizontal", 0, 3, 1, 3),
    Sketcher.Constraint("Horizontal", 2, 3, 3, 3),
    Sketcher.Constraint("Horizontal", 4, 3, 5, 3),
    Sketcher.Constraint("Horizontal", 5, 3, 6, 3),
    Sketcher.Constraint("Horizontal", 6, 3, 7, 3),
    Sketcher.Constraint("Horizontal", 3, 3, 8, 3),
    Sketcher.Constraint("Horizontal", 8, 3, 9, 3),
    Sketcher.Constraint("Horizontal", 10, 3, 11, 3),
    Sketcher.Constraint("Vertical", 3, 3, 4, 3),
    Sketcher.Constraint("Vertical", 2, 3, 5, 3),
    Sketcher.Constraint("Vertical", 7, 3, 8, 3),
    Sketcher.Constraint("Vertical", 6, 3, 9, 3),
    Sketcher.Constraint("Diameter", 0, Q("3.5 mm")),
    Sketcher.Constraint("DistanceX", 1, 3, 0, 3, Q("8 mm")),
    Sketcher.Constraint("DistanceX", 3, 3, 2, 3, Q("20 mm")),
    Sketcher.Constraint("DistanceY", 4, 3, 3, 3, Q("154 mm")),
    Sketcher.Constraint("DistanceX", 7, 3, 6, 3, Q("20 mm")),
    Sketcher.Constraint("DistanceX", 11, 3, 10, 3, Q("8 mm")),
    Sketcher.Constraint("DistanceX", 6, 3, 1, 3, Q("13.1 mm")),
    Sketcher.Constraint("DistanceX", 10, 3, 3, 3, Q("13.1 mm")),
    Sketcher.Constraint("DistanceY", 0, 3, 10, 3, Q("33.9 mm")),
    Sketcher.Constraint("DistanceY", 0, 3, 2, 3, Q("93.95 mm")),
    Sketcher.Constraint("DistanceX", 0, 3, -1, 1, Q("166.148737 mm")),
    Sketcher.Constraint("DistanceY", -1, 1, 0, 3, Q("137.798737 mm")),
    Sketcher.Constraint("DistanceX", -1, 1, 2, 3, Q("7.248737 mm")),
])
pocket20 = body.newObject("PartDesign::Pocket", "Pocket019")
pocket20.Profile = sketch21
pocket20.Type = "ThroughAll"
pocket20.Reversed = True

doc.recompute()
